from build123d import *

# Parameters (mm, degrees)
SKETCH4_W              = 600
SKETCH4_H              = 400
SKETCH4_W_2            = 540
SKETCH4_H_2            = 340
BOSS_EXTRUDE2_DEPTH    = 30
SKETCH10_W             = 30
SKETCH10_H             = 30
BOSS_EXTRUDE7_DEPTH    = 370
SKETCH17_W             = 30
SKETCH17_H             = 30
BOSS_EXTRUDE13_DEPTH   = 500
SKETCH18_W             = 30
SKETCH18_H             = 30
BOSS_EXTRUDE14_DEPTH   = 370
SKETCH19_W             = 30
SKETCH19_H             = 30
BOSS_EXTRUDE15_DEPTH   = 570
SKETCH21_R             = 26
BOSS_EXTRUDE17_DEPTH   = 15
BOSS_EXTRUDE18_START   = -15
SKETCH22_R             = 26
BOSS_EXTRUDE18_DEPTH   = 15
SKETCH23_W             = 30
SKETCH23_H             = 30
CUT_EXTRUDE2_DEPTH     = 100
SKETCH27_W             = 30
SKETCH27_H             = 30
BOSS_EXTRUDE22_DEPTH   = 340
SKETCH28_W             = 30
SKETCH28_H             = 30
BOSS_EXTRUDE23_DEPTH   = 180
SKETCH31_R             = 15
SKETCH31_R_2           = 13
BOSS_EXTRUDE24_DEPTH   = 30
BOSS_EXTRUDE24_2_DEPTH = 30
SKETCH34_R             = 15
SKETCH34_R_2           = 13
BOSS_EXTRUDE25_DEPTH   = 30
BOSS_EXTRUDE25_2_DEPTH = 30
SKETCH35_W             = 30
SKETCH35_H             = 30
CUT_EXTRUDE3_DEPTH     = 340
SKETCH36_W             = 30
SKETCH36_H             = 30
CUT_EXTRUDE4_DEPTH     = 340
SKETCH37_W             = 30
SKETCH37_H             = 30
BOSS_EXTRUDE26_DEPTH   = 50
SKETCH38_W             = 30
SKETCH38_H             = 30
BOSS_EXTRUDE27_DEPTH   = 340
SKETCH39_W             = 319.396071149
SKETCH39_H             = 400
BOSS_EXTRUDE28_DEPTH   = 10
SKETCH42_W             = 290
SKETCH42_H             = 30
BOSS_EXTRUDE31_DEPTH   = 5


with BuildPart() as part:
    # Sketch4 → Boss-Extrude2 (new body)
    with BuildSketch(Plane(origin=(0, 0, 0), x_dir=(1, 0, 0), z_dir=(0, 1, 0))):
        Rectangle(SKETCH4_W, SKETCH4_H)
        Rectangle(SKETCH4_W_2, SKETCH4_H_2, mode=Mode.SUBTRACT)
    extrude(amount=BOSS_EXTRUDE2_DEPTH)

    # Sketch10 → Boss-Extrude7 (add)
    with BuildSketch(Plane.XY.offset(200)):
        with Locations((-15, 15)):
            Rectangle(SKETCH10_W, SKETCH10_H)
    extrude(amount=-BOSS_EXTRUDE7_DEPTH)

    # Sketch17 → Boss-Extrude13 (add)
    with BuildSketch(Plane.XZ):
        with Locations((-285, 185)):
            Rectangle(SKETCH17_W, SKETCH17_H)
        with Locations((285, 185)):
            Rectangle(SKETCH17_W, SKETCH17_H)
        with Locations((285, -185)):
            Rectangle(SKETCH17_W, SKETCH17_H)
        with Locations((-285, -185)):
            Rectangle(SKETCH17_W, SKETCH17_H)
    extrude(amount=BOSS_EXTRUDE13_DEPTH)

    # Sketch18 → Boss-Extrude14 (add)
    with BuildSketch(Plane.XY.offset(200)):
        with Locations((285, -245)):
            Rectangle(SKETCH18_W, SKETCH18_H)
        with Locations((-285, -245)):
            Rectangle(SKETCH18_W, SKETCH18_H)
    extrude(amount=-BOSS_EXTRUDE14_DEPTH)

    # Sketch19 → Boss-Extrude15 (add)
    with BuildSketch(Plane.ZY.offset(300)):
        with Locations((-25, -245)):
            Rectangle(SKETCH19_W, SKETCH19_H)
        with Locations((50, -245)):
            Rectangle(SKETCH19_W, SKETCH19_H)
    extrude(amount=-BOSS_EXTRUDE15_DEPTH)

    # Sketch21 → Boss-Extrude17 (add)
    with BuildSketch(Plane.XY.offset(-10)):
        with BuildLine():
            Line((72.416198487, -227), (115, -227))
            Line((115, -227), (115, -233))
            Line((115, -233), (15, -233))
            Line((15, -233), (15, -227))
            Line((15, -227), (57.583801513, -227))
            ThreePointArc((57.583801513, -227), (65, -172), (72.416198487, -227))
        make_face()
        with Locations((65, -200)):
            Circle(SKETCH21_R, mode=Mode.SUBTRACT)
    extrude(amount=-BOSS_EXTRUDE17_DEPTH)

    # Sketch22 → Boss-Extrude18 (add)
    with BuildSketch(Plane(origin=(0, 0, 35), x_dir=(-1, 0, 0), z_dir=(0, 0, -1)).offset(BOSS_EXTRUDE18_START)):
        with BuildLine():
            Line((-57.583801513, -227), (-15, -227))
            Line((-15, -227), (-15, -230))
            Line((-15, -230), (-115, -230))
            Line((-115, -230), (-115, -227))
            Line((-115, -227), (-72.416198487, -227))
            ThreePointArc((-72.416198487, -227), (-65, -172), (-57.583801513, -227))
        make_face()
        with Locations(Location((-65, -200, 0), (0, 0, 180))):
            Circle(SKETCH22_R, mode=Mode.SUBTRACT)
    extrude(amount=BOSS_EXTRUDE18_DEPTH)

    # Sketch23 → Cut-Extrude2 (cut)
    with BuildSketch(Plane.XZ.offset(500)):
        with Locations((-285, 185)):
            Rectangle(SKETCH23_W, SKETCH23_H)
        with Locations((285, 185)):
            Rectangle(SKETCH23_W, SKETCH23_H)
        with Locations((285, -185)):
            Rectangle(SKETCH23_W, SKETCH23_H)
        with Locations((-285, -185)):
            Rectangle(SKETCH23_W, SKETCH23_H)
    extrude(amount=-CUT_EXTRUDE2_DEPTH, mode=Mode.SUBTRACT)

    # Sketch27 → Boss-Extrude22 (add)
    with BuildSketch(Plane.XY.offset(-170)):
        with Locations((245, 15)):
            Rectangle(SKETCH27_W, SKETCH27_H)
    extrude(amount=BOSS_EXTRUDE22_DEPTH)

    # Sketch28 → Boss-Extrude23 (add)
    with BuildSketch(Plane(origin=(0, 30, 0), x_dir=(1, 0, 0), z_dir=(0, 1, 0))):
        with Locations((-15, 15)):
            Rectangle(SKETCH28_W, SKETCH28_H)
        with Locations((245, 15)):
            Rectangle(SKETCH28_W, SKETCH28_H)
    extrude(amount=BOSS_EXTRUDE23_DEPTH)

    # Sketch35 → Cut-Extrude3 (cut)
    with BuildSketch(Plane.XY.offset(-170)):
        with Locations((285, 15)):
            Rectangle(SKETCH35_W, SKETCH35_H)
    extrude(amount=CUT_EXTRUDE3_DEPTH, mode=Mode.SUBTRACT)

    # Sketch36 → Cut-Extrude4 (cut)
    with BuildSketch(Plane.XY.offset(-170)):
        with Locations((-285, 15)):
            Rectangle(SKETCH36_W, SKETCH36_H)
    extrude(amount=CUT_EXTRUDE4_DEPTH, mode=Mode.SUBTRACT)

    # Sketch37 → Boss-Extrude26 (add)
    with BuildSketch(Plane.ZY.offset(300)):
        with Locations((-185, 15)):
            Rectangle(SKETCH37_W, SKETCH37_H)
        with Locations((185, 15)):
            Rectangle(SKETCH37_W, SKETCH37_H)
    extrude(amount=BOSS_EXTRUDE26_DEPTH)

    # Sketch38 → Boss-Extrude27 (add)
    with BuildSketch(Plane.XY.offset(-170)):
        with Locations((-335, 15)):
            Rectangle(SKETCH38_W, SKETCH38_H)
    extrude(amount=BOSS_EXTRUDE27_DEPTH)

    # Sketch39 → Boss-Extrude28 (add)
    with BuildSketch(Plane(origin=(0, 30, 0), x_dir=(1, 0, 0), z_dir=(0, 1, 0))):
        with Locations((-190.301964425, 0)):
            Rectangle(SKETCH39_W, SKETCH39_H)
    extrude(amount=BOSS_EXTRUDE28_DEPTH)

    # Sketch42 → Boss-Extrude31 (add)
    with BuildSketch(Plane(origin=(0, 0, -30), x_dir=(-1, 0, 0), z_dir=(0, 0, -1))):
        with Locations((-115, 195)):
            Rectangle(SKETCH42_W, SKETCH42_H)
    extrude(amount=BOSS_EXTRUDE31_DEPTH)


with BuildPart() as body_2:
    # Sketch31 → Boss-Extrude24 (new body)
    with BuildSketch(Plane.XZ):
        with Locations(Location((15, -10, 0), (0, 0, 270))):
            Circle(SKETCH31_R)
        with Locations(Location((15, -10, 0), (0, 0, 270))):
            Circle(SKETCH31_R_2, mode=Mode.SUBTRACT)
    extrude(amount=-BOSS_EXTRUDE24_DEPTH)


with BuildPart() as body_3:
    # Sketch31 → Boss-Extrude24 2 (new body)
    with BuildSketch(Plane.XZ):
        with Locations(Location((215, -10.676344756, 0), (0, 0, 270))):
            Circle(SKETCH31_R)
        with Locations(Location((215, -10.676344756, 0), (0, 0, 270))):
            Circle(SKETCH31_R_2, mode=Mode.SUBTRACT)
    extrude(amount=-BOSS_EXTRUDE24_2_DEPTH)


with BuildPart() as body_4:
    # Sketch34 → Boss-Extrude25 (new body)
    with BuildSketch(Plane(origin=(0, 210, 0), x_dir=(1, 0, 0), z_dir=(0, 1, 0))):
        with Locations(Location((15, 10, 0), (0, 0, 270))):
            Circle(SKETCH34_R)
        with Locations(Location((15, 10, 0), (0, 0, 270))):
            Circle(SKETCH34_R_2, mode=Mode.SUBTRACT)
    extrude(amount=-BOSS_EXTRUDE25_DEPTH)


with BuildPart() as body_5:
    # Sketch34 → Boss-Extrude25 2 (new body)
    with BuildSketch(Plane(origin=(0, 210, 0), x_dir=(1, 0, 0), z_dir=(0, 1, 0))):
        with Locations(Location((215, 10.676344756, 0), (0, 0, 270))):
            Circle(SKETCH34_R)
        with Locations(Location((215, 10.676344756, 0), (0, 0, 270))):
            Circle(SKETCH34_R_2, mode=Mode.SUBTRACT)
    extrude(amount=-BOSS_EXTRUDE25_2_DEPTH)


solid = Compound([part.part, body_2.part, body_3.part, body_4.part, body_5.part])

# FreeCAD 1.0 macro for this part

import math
import FreeCAD as App
import Part
import Sketcher
Q = App.Units.Quantity

doc = App.newDocument("Part")
body = doc.addObject("PartDesign::Body", "Body")

# Sketch on XZ plane
sketch1 = body.newObject("Sketcher::SketchObject", "Sketch")
sketch1.AttachmentSupport = (doc.getObject("XZ_Plane"), [""])
sketch1.MapMode = "FlatFace"
sketch1.addGeometry(Part.LineSegment(App.Vector(-300, -200, 0), App.Vector(-300, 200, 0)), False)
sketch1.addGeometry(Part.LineSegment(App.Vector(-300, 200, 0), App.Vector(300, 200, 0)), False)
sketch1.addGeometry(Part.LineSegment(App.Vector(300, 200, 0), App.Vector(300, -200, 0)), False)
sketch1.addGeometry(Part.LineSegment(App.Vector(300, -200, 0), App.Vector(-300, -200, 0)), False)
sketch1.addGeometry(Part.LineSegment(App.Vector(270, 170, 0), App.Vector(-270, 170, 0)), False)
sketch1.addGeometry(Part.LineSegment(App.Vector(-270, 170, 0), App.Vector(-270, -170, 0)), False)
sketch1.addGeometry(Part.LineSegment(App.Vector(-270, -170, 0), App.Vector(270, -170, 0)), False)
sketch1.addGeometry(Part.LineSegment(App.Vector(270, -170, 0), App.Vector(270, 170, 0)), False)
sketch1.addConstraint(Sketcher.Constraint("Coincident", 0, 2, 1, 1))
sketch1.addConstraint(Sketcher.Constraint("Coincident", 1, 2, 2, 1))
sketch1.addConstraint(Sketcher.Constraint("Coincident", 2, 2, 3, 1))
sketch1.addConstraint(Sketcher.Constraint("Coincident", 3, 2, 0, 1))
sketch1.addConstraint(Sketcher.Constraint("Coincident", 4, 2, 5, 1))
sketch1.addConstraint(Sketcher.Constraint("Coincident", 5, 2, 6, 1))
sketch1.addConstraint(Sketcher.Constraint("Coincident", 6, 2, 7, 1))
sketch1.addConstraint(Sketcher.Constraint("Coincident", 7, 2, 4, 1))
sketch1.addConstraint(Sketcher.Constraint("Vertical", 0))
sketch1.addConstraint(Sketcher.Constraint("Horizontal", 1))
sketch1.addConstraint(Sketcher.Constraint("Vertical", 2))
sketch1.addConstraint(Sketcher.Constraint("Horizontal", 3))
sketch1.addConstraint(Sketcher.Constraint("Horizontal", 4))
sketch1.addConstraint(Sketcher.Constraint("Vertical", 5))
sketch1.addConstraint(Sketcher.Constraint("Horizontal", 6))
sketch1.addConstraint(Sketcher.Constraint("Vertical", 7))
sketch1.addConstraint(Sketcher.Constraint("Symmetric", 0, 2, 2, 2, -1, 1))
sketch1.addConstraint(Sketcher.Constraint("Symmetric", 4, 2, 6, 2, -1, 1))
sketch1.addConstraint(Sketcher.Constraint("DistanceX", 1, 1, 1, 2, Q("600 mm")))
sketch1.addConstraint(Sketcher.Constraint("DistanceX", 4, 2, 4, 1, Q("540 mm")))
sketch1.addConstraint(Sketcher.Constraint("DistanceY", 0, 1, 0, 2, Q("400 mm")))
sketch1.addConstraint(Sketcher.Constraint("DistanceY", 5, 2, 5, 1, Q("340 mm")))
pad1 = body.newObject("PartDesign::Pad", "Pad")
pad1.Profile = sketch1
pad1.Length = 30
pad1.Reversed = True

# Sketch on XY plane
sketch2 = body.newObject("Sketcher::SketchObject", "Sketch001")
sketch2.AttachmentSupport = (doc.getObject("XY_Plane"), [""])
sketch2.MapMode = "FlatFace"
sketch2.AttachmentOffset = App.Placement(App.Vector(0, 0, 200), App.Rotation())
sketch2.addGeometry(Part.LineSegment(App.Vector(-30, 30, 0), App.Vector(-30, 0, 0)), False)
sketch2.addGeometry(Part.LineSegment(App.Vector(-30, 0, 0), App.Vector(0, 0, 0)), False)
sketch2.addGeometry(Part.LineSegment(App.Vector(0, 0, 0), App.Vector(0, 30, 0)), False)
sketch2.addGeometry(Part.LineSegment(App.Vector(0, 30, 0), App.Vector(-30, 30, 0)), False)
sketch2.addConstraint(Sketcher.Constraint("Coincident", 0, 2, 1, 1))
sketch2.addConstraint(Sketcher.Constraint("Coincident", 1, 2, 2, 1))
sketch2.addConstraint(Sketcher.Constraint("Coincident", 2, 2, 3, 1))
sketch2.addConstraint(Sketcher.Constraint("Coincident", 3, 2, 0, 1))
sketch2.addConstraint(Sketcher.Constraint("Vertical", 0))
sketch2.addConstraint(Sketcher.Constraint("Horizontal", 1))
sketch2.addConstraint(Sketcher.Constraint("Vertical", 2))
sketch2.addConstraint(Sketcher.Constraint("Horizontal", 3))
sketch2.addConstraint(Sketcher.Constraint("Coincident", 1, 2, -1, 1))
sketch2.addConstraint(Sketcher.Constraint("Equal", 3, 0))
sketch2.addConstraint(Sketcher.Constraint("DistanceX", 1, 1, 1, 2, Q("30 mm")))
pad2 = body.newObject("PartDesign::Pad", "Pad001")
pad2.Profile = sketch2
pad2.Length = 370
pad2.Reversed = True

# Sketch on XZ plane
sketch3 = body.newObject("Sketcher::SketchObject", "Sketch002")
sketch3.AttachmentSupport = (doc.getObject("XZ_Plane"), [""])
sketch3.MapMode = "FlatFace"
sketch3.addGeometry(Part.LineSegment(App.Vector(-300, 200, 0), App.Vector(-300, 170, 0)), False)
sketch3.addGeometry(Part.LineSegment(App.Vector(-300, 170, 0), App.Vector(-270, 170, 0)), False)
sketch3.addGeometry(Part.LineSegment(App.Vector(-270, 170, 0), App.Vector(-270, 200, 0)), False)
sketch3.addGeometry(Part.LineSegment(App.Vector(-270, 200, 0), App.Vector(-300, 200, 0)), False)
sketch3.addGeometry(Part.LineSegment(App.Vector(270, 200, 0), App.Vector(270, 170, 0)), False)
sketch3.addGeometry(Part.LineSegment(App.Vector(270, 170, 0), App.Vector(300, 170, 0)), False)
sketch3.addGeometry(Part.LineSegment(App.Vector(300, 170, 0), App.Vector(300, 200, 0)), False)
sketch3.addGeometry(Part.LineSegment(App.Vector(300, 200, 0), App.Vector(270, 200, 0)), False)
sketch3.addGeometry(Part.LineSegment(App.Vector(270, -170, 0), App.Vector(270, -200, 0)), False)
sketch3.addGeometry(Part.LineSegment(App.Vector(270, -200, 0), App.Vector(300, -200, 0)), False)
sketch3.addGeometry(Part.LineSegment(App.Vector(300, -200, 0), App.Vector(300, -170, 0)), False)
sketch3.addGeometry(Part.LineSegment(App.Vector(300, -170, 0), App.Vector(270, -170, 0)), False)
sketch3.addGeometry(Part.LineSegment(App.Vector(-300, -170, 0), App.Vector(-300, -200, 0)), False)
sketch3.addGeometry(Part.LineSegment(App.Vector(-300, -200, 0), App.Vector(-270, -200, 0)), False)
sketch3.addGeometry(Part.LineSegment(App.Vector(-270, -200, 0), App.Vector(-270, -170, 0)), False)
sketch3.addGeometry(Part.LineSegment(App.Vector(-270, -170, 0), App.Vector(-300, -170, 0)), False)
sketch3.addConstraint(Sketcher.Constraint("Coincident", 0, 2, 1, 1))
sketch3.addConstraint(Sketcher.Constraint("Coincident", 1, 2, 2, 1))
sketch3.addConstraint(Sketcher.Constraint("Coincident", 2, 2, 3, 1))
sketch3.addConstraint(Sketcher.Constraint("Coincident", 3, 2, 0, 1))
sketch3.addConstraint(Sketcher.Constraint("Coincident", 4, 2, 5, 1))
sketch3.addConstraint(Sketcher.Constraint("Coincident", 5, 2, 6, 1))
sketch3.addConstraint(Sketcher.Constraint("Coincident", 6, 2, 7, 1))
sketch3.addConstraint(Sketcher.Constraint("Coincident", 7, 2, 4, 1))
sketch3.addConstraint(Sketcher.Constraint("Coincident", 8, 2, 9, 1))
sketch3.addConstraint(Sketcher.Constraint("Coincident", 9, 2, 10, 1))
sketch3.addConstraint(Sketcher.Constraint("Coincident", 10, 2, 11, 1))
sketch3.addConstraint(Sketcher.Constraint("Coincident", 11, 2, 8, 1))
sketch3.addConstraint(Sketcher.Constraint("Coincident", 12, 2, 13, 1))
sketch3.addConstraint(Sketcher.Constraint("Coincident", 13, 2, 14, 1))
sketch3.addConstraint(Sketcher.Constraint("Coincident", 14, 2, 15, 1))
sketch3.addConstraint(Sketcher.Constraint("Coincident", 15, 2, 12, 1))
sketch3.addConstraint(Sketcher.Constraint("Vertical", 0))
sketch3.addConstraint(Sketcher.Constraint("Horizontal", 1))
sketch3.addConstraint(Sketcher.Constraint("Vertical", 2))
sketch3.addConstraint(Sketcher.Constraint("Horizontal", 3))
sketch3.addConstraint(Sketcher.Constraint("Vertical", 4))
sketch3.addConstraint(Sketcher.Constraint("Horizontal", 5))
sketch3.addConstraint(Sketcher.Constraint("Vertical", 6))
sketch3.addConstraint(Sketcher.Constraint("Horizontal", 7))
sketch3.addConstraint(Sketcher.Constraint("Vertical", 8))
sketch3.addConstraint(Sketcher.Constraint("Horizontal", 9))
sketch3.addConstraint(Sketcher.Constraint("Vertical", 10))
sketch3.addConstraint(Sketcher.Constraint("Horizontal", 11))
sketch3.addConstraint(Sketcher.Constraint("Vertical", 12))
sketch3.addConstraint(Sketcher.Constraint("Horizontal", 13))
sketch3.addConstraint(Sketcher.Constraint("Vertical", 14))
sketch3.addConstraint(Sketcher.Constraint("Horizontal", 15))
sketch3.addConstraint(Sketcher.Constraint("Symmetric", 2, 2, 8, 2, -1, 1))
sketch3.addConstraint(Sketcher.Constraint("Symmetric", 0, 2, 10, 2, -1, 1))
sketch3.addConstraint(Sketcher.Constraint("Symmetric", 6, 2, 12, 2, -1, 1))
sketch3.addConstraint(Sketcher.Constraint("Symmetric", 4, 2, 14, 2, -1, 1))
sketch3.addConstraint(Sketcher.Constraint("Symmetric", 1, 2, 4, 2, -2))
sketch3.addConstraint(Sketcher.Constraint("Symmetric", 3, 2, 6, 2, -2))
sketch3.addConstraint(Sketcher.Constraint("Equal", 15, 0))
sketch3.addConstraint(Sketcher.Constraint("DistanceX", 1, 1, 1, 2, Q("30 mm")))
sketch3.addConstraint(Sketcher.Constraint("DistanceX", 0, 2, -1, 1, Q("300 mm")))
sketch3.addConstraint(Sketcher.Constraint("DistanceY", -1, 1, 0, 2, Q("170 mm")))
pad3 = body.newObject("PartDesign::Pad", "Pad002")
pad3.Profile = sketch3
pad3.Length = 500

# Sketch on XY plane
sketch4 = body.newObject("Sketcher::SketchObject", "Sketch003")
sketch4.AttachmentSupport = (doc.getObject("XY_Plane"), [""])
sketch4.MapMode = "FlatFace"
sketch4.AttachmentOffset = App.Placement(App.Vector(0, 0, 200), App.Rotation())
sketch4.addGeometry(Part.LineSegment(App.Vector(270, -230, 0), App.Vector(270, -260, 0)), False)
sketch4.addGeometry(Part.LineSegment(App.Vector(270, -260, 0), App.Vector(300, -260, 0)), False)
sketch4.addGeometry(Part.LineSegment(App.Vector(300, -260, 0), App.Vector(300, -230, 0)), False)
sketch4.addGeometry(Part.LineSegment(App.Vector(300, -230, 0), App.Vector(270, -230, 0)), False)
sketch4.addGeometry(Part.LineSegment(App.Vector(-300, -230, 0), App.Vector(-300, -260, 0)), False)
sketch4.addGeometry(Part.LineSegment(App.Vector(-300, -260, 0), App.Vector(-270, -260, 0)), False)
sketch4.addGeometry(Part.LineSegment(App.Vector(-270, -260, 0), App.Vector(-270, -230, 0)), False)
sketch4.addGeometry(Part.LineSegment(App.Vector(-270, -230, 0), App.Vector(-300, -230, 0)), False)
sketch4.addConstraint(Sketcher.Constraint("Coincident", 0, 2, 1, 1))
sketch4.addConstraint(Sketcher.Constraint("Coincident", 1, 2, 2, 1))
sketch4.addConstraint(Sketcher.Constraint("Coincident", 2, 2, 3, 1))
sketch4.addConstraint(Sketcher.Constraint("Coincident", 3, 2, 0, 1))
sketch4.addConstraint(Sketcher.Constraint("Coincident", 4, 2, 5, 1))
sketch4.addConstraint(Sketcher.Constraint("Coincident", 5, 2, 6, 1))
sketch4.addConstraint(Sketcher.Constraint("Coincident", 6, 2, 7, 1))
sketch4.addConstraint(Sketcher.Constraint("Coincident", 7, 2, 4, 1))
sketch4.addConstraint(Sketcher.Constraint("Vertical", 0))
sketch4.addConstraint(Sketcher.Constraint("Horizontal", 1))
sketch4.addConstraint(Sketcher.Constraint("Vertical", 2))
sketch4.addConstraint(Sketcher.Constraint("Horizontal", 3))
sketch4.addConstraint(Sketcher.Constraint("Vertical", 4))
sketch4.addConstraint(Sketcher.Constraint("Horizontal", 5))
sketch4.addConstraint(Sketcher.Constraint("Vertical", 6))
sketch4.addConstraint(Sketcher.Constraint("Horizontal", 7))
sketch4.addConstraint(Sketcher.Constraint("Symmetric", 1, 2, 4, 2, -2))
sketch4.addConstraint(Sketcher.Constraint("Symmetric", 3, 2, 6, 2, -2))
sketch4.addConstraint(Sketcher.Constraint("Equal", 7, 0))
sketch4.addConstraint(Sketcher.Constraint("DistanceX", 1, 1, 1, 2, Q("30 mm")))
sketch4.addConstraint(Sketcher.Constraint("DistanceX", -1, 1, 0, 2, Q("270 mm")))
sketch4.addConstraint(Sketcher.Constraint("DistanceY", 0, 2, -1, 1, Q("260 mm")))
pad4 = body.newObject("PartDesign::Pad", "Pad003")
pad4.Profile = sketch4
pad4.Length = 370
pad4.Reversed = True

# Sketch on YZ plane
sketch5 = body.newObject("Sketcher::SketchObject", "Sketch004")
sketch5.AttachmentSupport = (doc.getObject("YZ_Plane"), [""])
sketch5.MapMode = "FlatFace"
sketch5.AttachmentOffset = App.Placement(App.Vector(0, 0, -300), App.Rotation())
sketch5.addGeometry(Part.LineSegment(App.Vector(-230, -40, 0), App.Vector(-260, -40, 0)), False)
sketch5.addGeometry(Part.LineSegment(App.Vector(-260, -40, 0), App.Vector(-260, -10, 0)), False)
sketch5.addGeometry(Part.LineSegment(App.Vector(-260, -10, 0), App.Vector(-230, -10, 0)), False)
sketch5.addGeometry(Part.LineSegment(App.Vector(-230, -10, 0), App.Vector(-230, -40, 0)), False)
sketch5.addGeometry(Part.LineSegment(App.Vector(-230, 35, 0), App.Vector(-260, 35, 0)), False)
sketch5.addGeometry(Part.LineSegment(App.Vector(-260, 35, 0), App.Vector(-260, 65, 0)), False)
sketch5.addGeometry(Part.LineSegment(App.Vector(-260, 65, 0), App.Vector(-230, 65, 0)), False)
sketch5.addGeometry(Part.LineSegment(App.Vector(-230, 65, 0), App.Vector(-230, 35, 0)), False)
sketch5.addConstraint(Sketcher.Constraint("Coincident", 0, 2, 1, 1))
sketch5.addConstraint(Sketcher.Constraint("Coincident", 1, 2, 2, 1))
sketch5.addConstraint(Sketcher.Constraint("Coincident", 2, 2, 3, 1))
sketch5.addConstraint(Sketcher.Constraint("Coincident", 3, 2, 0, 1))
sketch5.addConstraint(Sketcher.Constraint("Coincident", 4, 2, 5, 1))
sketch5.addConstraint(Sketcher.Constraint("Coincident", 5, 2, 6, 1))
sketch5.addConstraint(Sketcher.Constraint("Coincident", 6, 2, 7, 1))
sketch5.addConstraint(Sketcher.Constraint("Coincident", 7, 2, 4, 1))
sketch5.addConstraint(Sketcher.Constraint("Horizontal", 0))
sketch5.addConstraint(Sketcher.Constraint("Vertical", 1))
sketch5.addConstraint(Sketcher.Constraint("Horizontal", 2))
sketch5.addConstraint(Sketcher.Constraint("Vertical", 3))
sketch5.addConstraint(Sketcher.Constraint("Horizontal", 4))
sketch5.addConstraint(Sketcher.Constraint("Vertical", 5))
sketch5.addConstraint(Sketcher.Constraint("Horizontal", 6))
sketch5.addConstraint(Sketcher.Constraint("Vertical", 7))
sketch5.addConstraint(Sketcher.Constraint("Vertical", 1, 2, 4, 2))
sketch5.addConstraint(Sketcher.Constraint("Vertical", 3, 2, 6, 2))
sketch5.addConstraint(Sketcher.Constraint("Equal", 6, 1))
sketch5.addConstraint(Sketcher.Constraint("Equal", 3, 5))
sketch5.addConstraint(Sketcher.Constraint("DistanceX", 0, 2, 0, 1, Q("30 mm")))
sketch5.addConstraint(Sketcher.Constraint("DistanceX", 0, 2, -1, 1, Q("260 mm")))
sketch5.addConstraint(Sketcher.Constraint("DistanceY", 0, 2, -1, 1, Q("40 mm")))
sketch5.addConstraint(Sketcher.Constraint("DistanceY", -1, 1, 4, 2, Q("35 mm")))
pad5 = body.newObject("PartDesign::Pad", "Pad004")
pad5.Profile = sketch5
pad5.Length = 570

# Sketch on XY plane
sketch6 = body.newObject("Sketcher::SketchObject", "Sketch005")
sketch6.AttachmentSupport = (doc.getObject("XY_Plane"), [""])
sketch6.MapMode = "FlatFace"
sketch6.AttachmentOffset = App.Placement(App.Vector(0, 0, -10), App.Rotation())
sketch6.addGeometry(Part.LineSegment(App.Vector(115, -227, 0), App.Vector(72.416198, -227, 0)), False)
sketch6.addGeometry(Part.ArcOfCircle(Part.Circle(App.Vector(65, -200, 0), App.Vector(0, 0, 1), 28), math.radians(-74.641114), math.radians(254.641114)), False)
sketch6.addGeometry(Part.LineSegment(App.Vector(57.583802, -227, 0), App.Vector(15, -227, 0)), False)
sketch6.addGeometry(Part.LineSegment(App.Vector(15, -227, 0), App.Vector(15, -233, 0)), False)
sketch6.addGeometry(Part.LineSegment(App.Vector(15, -233, 0), App.Vector(115, -233, 0)), False)
sketch6.addGeometry(Part.LineSegment(App.Vector(115, -233, 0), App.Vector(115, -227, 0)), False)
sketch6.addGeometry(Part.Circle(App.Vector(65, -200, 0), App.Vector(0, 0, 1), 26), False)
sketch6.addConstraint(Sketcher.Constraint("Coincident", 0, 2, 1, 1))
sketch6.addConstraint(Sketcher.Constraint("Coincident", 1, 2, 2, 1))
sketch6.addConstraint(Sketcher.Constraint("Coincident", 2, 2, 3, 1))
sketch6.addConstraint(Sketcher.Constraint("Coincident", 3, 2, 4, 1))
sketch6.addConstraint(Sketcher.Constraint("Coincident", 4, 2, 5, 1))
sketch6.addConstraint(Sketcher.Constraint("Coincident", 5, 2, 0, 1))
sketch6.addConstraint(Sketcher.Constraint("Horizontal", 0))
sketch6.addConstraint(Sketcher.Constraint("Horizontal", 2))
sketch6.addConstraint(Sketcher.Constraint("Vertical", 3))
sketch6.addConstraint(Sketcher.Constraint("Horizontal", 4))
sketch6.addConstraint(Sketcher.Constraint("Vertical", 5))
sketch6.addConstraint(Sketcher.Constraint("Coincident", 6, 3, 1, 3))
sketch6.addConstraint(Sketcher.Constraint("Horizontal", 0, 2, 1, 2))
sketch6.addConstraint(Sketcher.Constraint("Equal", 0, 2))
sketch6.addConstraint(Sketcher.Constraint("Diameter", 6, Q("52 mm")))
sketch6.addConstraint(Sketcher.Constraint("Radius", 1, Q("28 mm")))
sketch6.addConstraint(Sketcher.Constraint("DistanceX", 4, 1, 4, 2, Q("100 mm")))
sketch6.addConstraint(Sketcher.Constraint("DistanceY", 3, 2, 3, 1, Q("6 mm")))
sketch6.addConstraint(Sketcher.Constraint("DistanceX", -1, 1, 1, 3, Q("65 mm")))
sketch6.addConstraint(Sketcher.Constraint("DistanceY", 1, 3, -1, 1, Q("200 mm")))
sketch6.addConstraint(Sketcher.Constraint("DistanceY", 0, 2, -1, 1, Q("227 mm")))
pad6 = body.newObject("PartDesign::Pad", "Pad005")
pad6.Profile = sketch6
pad6.Length = 15
pad6.Reversed = True

# Sketch on XY plane
sketch7 = body.newObject("Sketcher::SketchObject", "Sketch006")
sketch7.AttachmentSupport = (doc.getObject("XY_Plane"), [""])
sketch7.MapMode = "FlatFace"
sketch7.AttachmentOffset = App.Placement(App.Vector(0, 0, 50), App.Rotation())
sketch7.addGeometry(Part.LineSegment(App.Vector(15, -227, 0), App.Vector(57.583802, -227, 0)), False)
sketch7.addGeometry(Part.ArcOfCircle(Part.Circle(App.Vector(65, -200, 0), App.Vector(0, 0, 1), 28), math.radians(-74.641114), math.radians(254.641114)), False)
sketch7.addGeometry(Part.LineSegment(App.Vector(72.416198, -227, 0), App.Vector(115, -227, 0)), False)
sketch7.addGeometry(Part.LineSegment(App.Vector(115, -227, 0), App.Vector(115, -230, 0)), False)
sketch7.addGeometry(Part.LineSegment(App.Vector(115, -230, 0), App.Vector(15, -230, 0)), False)
sketch7.addGeometry(Part.LineSegment(App.Vector(15, -230, 0), App.Vector(15, -227, 0)), False)
sketch7.addGeometry(Part.Circle(App.Vector(65, -200, 0), App.Vector(0, 0, 1), 26), False)
sketch7.addConstraint(Sketcher.Constraint("Coincident", 0, 2, 1, 2))
sketch7.addConstraint(Sketcher.Constraint("Coincident", 1, 1, 2, 1))
sketch7.addConstraint(Sketcher.Constraint("Coincident", 2, 2, 3, 1))
sketch7.addConstraint(Sketcher.Constraint("Coincident", 3, 2, 4, 1))
sketch7.addConstraint(Sketcher.Constraint("Coincident", 4, 2, 5, 1))
sketch7.addConstraint(Sketcher.Constraint("Coincident", 5, 2, 0, 1))
sketch7.addConstraint(Sketcher.Constraint("Horizontal", 0))
sketch7.addConstraint(Sketcher.Constraint("Horizontal", 2))
sketch7.addConstraint(Sketcher.Constraint("Vertical", 3))
sketch7.addConstraint(Sketcher.Constraint("Horizontal", 4))
sketch7.addConstraint(Sketcher.Constraint("Vertical", 5))
sketch7.addConstraint(Sketcher.Constraint("Coincident", 6, 3, 1, 3))
sketch7.addConstraint(Sketcher.Constraint("Horizontal", 0, 2, 1, 1))
sketch7.addConstraint(Sketcher.Constraint("Equal", 0, 2))
sketch7.addConstraint(Sketcher.Constraint("Diameter", 6, Q("52 mm")))
sketch7.addConstraint(Sketcher.Constraint("Radius", 1, Q("28 mm")))
sketch7.addConstraint(Sketcher.Constraint("DistanceX", 4, 2, 4, 1, Q("100 mm")))
sketch7.addConstraint(Sketcher.Constraint("DistanceY", 3, 2, 3, 1, Q("3 mm")))
sketch7.addConstraint(Sketcher.Constraint("DistanceX", -1, 1, 1, 3, Q("65 mm")))
sketch7.addConstraint(Sketcher.Constraint("DistanceY", 1, 3, -1, 1, Q("200 mm")))
sketch7.addConstraint(Sketcher.Constraint("DistanceY", 0, 2, -1, 1, Q("227 mm")))
pad7 = body.newObject("PartDesign::Pad", "Pad006")
pad7.Profile = sketch7
pad7.Length = 15
pad7.Reversed = True

# Sketch on XZ plane
sketch8 = body.newObject("Sketcher::SketchObject", "Sketch007")
sketch8.AttachmentSupport = (doc.getObject("XZ_Plane"), [""])
sketch8.MapMode = "FlatFace"
sketch8.AttachmentOffset = App.Placement(App.Vector(0, 0, 500), App.Rotation())
sketch8.addGeometry(Part.LineSegment(App.Vector(-300, 200, 0), App.Vector(-300, 170, 0)), False)
sketch8.addGeometry(Part.LineSegment(App.Vector(-300, 170, 0), App.Vector(-270, 170, 0)), False)
sketch8.addGeometry(Part.LineSegment(App.Vector(-270, 170, 0), App.Vector(-270, 200, 0)), False)
sketch8.addGeometry(Part.LineSegment(App.Vector(-270, 200, 0), App.Vector(-300, 200, 0)), False)
sketch8.addGeometry(Part.LineSegment(App.Vector(270, 200, 0), App.Vector(270, 170, 0)), False)
sketch8.addGeometry(Part.LineSegment(App.Vector(270, 170, 0), App.Vector(300, 170, 0)), False)
sketch8.addGeometry(Part.LineSegment(App.Vector(300, 170, 0), App.Vector(300, 200, 0)), False)
sketch8.addGeometry(Part.LineSegment(App.Vector(300, 200, 0), App.Vector(270, 200, 0)), False)
sketch8.addGeometry(Part.LineSegment(App.Vector(270, -170, 0), App.Vector(270, -200, 0)), False)
sketch8.addGeometry(Part.LineSegment(App.Vector(270, -200, 0), App.Vector(300, -200, 0)), False)
sketch8.addGeometry(Part.LineSegment(App.Vector(300, -200, 0), App.Vector(300, -170, 0)), False)
sketch8.addGeometry(Part.LineSegment(App.Vector(300, -170, 0), App.Vector(270, -170, 0)), False)
sketch8.addGeometry(Part.LineSegment(App.Vector(-300, -170, 0), App.Vector(-300, -200, 0)), False)
sketch8.addGeometry(Part.LineSegment(App.Vector(-300, -200, 0), App.Vector(-270, -200, 0)), False)
sketch8.addGeometry(Part.LineSegment(App.Vector(-270, -200, 0), App.Vector(-270, -170, 0)), False)
sketch8.addGeometry(Part.LineSegment(App.Vector(-270, -170, 0), App.Vector(-300, -170, 0)), False)
sketch8.addConstraint(Sketcher.Constraint("Coincident", 0, 2, 1, 1))
sketch8.addConstraint(Sketcher.Constraint("Coincident", 1, 2, 2, 1))
sketch8.addConstraint(Sketcher.Constraint("Coincident", 2, 2, 3, 1))
sketch8.addConstraint(Sketcher.Constraint("Coincident", 3, 2, 0, 1))
sketch8.addConstraint(Sketcher.Constraint("Coincident", 4, 2, 5, 1))
sketch8.addConstraint(Sketcher.Constraint("Coincident", 5, 2, 6, 1))
sketch8.addConstraint(Sketcher.Constraint("Coincident", 6, 2, 7, 1))
sketch8.addConstraint(Sketcher.Constraint("Coincident", 7, 2, 4, 1))
sketch8.addConstraint(Sketcher.Constraint("Coincident", 8, 2, 9, 1))
sketch8.addConstraint(Sketcher.Constraint("Coincident", 9, 2, 10, 1))
sketch8.addConstraint(Sketcher.Constraint("Coincident", 10, 2, 11, 1))
sketch8.addConstraint(Sketcher.Constraint("Coincident", 11, 2, 8, 1))
sketch8.addConstraint(Sketcher.Constraint("Coincident", 12, 2, 13, 1))
sketch8.addConstraint(Sketcher.Constraint("Coincident", 13, 2, 14, 1))
sketch8.addConstraint(Sketcher.Constraint("Coincident", 14, 2, 15, 1))
sketch8.addConstraint(Sketcher.Constraint("Coincident", 15, 2, 12, 1))
sketch8.addConstraint(Sketcher.Constraint("Vertical", 0))
sketch8.addConstraint(Sketcher.Constraint("Horizontal", 1))
sketch8.addConstraint(Sketcher.Constraint("Vertical", 2))
sketch8.addConstraint(Sketcher.Constraint("Horizontal", 3))
sketch8.addConstraint(Sketcher.Constraint("Vertical", 4))
sketch8.addConstraint(Sketcher.Constraint("Horizontal", 5))
sketch8.addConstraint(Sketcher.Constraint("Vertical", 6))
sketch8.addConstraint(Sketcher.Constraint("Horizontal", 7))
sketch8.addConstraint(Sketcher.Constraint("Vertical", 8))
sketch8.addConstraint(Sketcher.Constraint("Horizontal", 9))
sketch8.addConstraint(Sketcher.Constraint("Vertical", 10))
sketch8.addConstraint(Sketcher.Constraint("Horizontal", 11))
sketch8.addConstraint(Sketcher.Constraint("Vertical", 12))
sketch8.addConstraint(Sketcher.Constraint("Horizontal", 13))
sketch8.addConstraint(Sketcher.Constraint("Vertical", 14))
sketch8.addConstraint(Sketcher.Constraint("Horizontal", 15))
sketch8.addConstraint(Sketcher.Constraint("Symmetric", 2, 2, 8, 2, -1, 1))
sketch8.addConstraint(Sketcher.Constraint("Symmetric", 0, 2, 10, 2, -1, 1))
sketch8.addConstraint(Sketcher.Constraint("Symmetric", 6, 2, 12, 2, -1, 1))
sketch8.addConstraint(Sketcher.Constraint("Symmetric", 4, 2, 14, 2, -1, 1))
sketch8.addConstraint(Sketcher.Constraint("Symmetric", 1, 2, 4, 2, -2))
sketch8.addConstraint(Sketcher.Constraint("Symmetric", 3, 2, 6, 2, -2))
sketch8.addConstraint(Sketcher.Constraint("Equal", 15, 0))
sketch8.addConstraint(Sketcher.Constraint("DistanceX", 1, 1, 1, 2, Q("30 mm")))
sketch8.addConstraint(Sketcher.Constraint("DistanceX", 0, 2, -1, 1, Q("300 mm")))
sketch8.addConstraint(Sketcher.Constraint("DistanceY", -1, 1, 0, 2, Q("170 mm")))
pocket1 = body.newObject("PartDesign::Pocket", "Pocket")
pocket1.Profile = sketch8
pocket1.Length = 100

# Sketch on XY plane
sketch9 = body.newObject("Sketcher::SketchObject", "Sketch008")
sketch9.AttachmentSupport = (doc.getObject("XY_Plane"), [""])
sketch9.MapMode = "FlatFace"
sketch9.AttachmentOffset = App.Placement(App.Vector(0, 0, -170), App.Rotation())
sketch9.addGeometry(Part.LineSegment(App.Vector(230, 30, 0), App.Vector(230, 0, 0)), False)
sketch9.addGeometry(Part.LineSegment(App.Vector(230, 0, 0), App.Vector(260, 0, 0)), False)
sketch9.addGeometry(Part.LineSegment(App.Vector(260, 0, 0), App.Vector(260, 30, 0)), False)
sketch9.addGeometry(Part.LineSegment(App.Vector(260, 30, 0), App.Vector(230, 30, 0)), False)
sketch9.addConstraint(Sketcher.Constraint("Coincident", 0, 2, 1, 1))
sketch9.addConstraint(Sketcher.Constraint("Coincident", 1, 2, 2, 1))
sketch9.addConstraint(Sketcher.Constraint("Coincident", 2, 2, 3, 1))
sketch9.addConstraint(Sketcher.Constraint("Coincident", 3, 2, 0, 1))
sketch9.addConstraint(Sketcher.Constraint("Vertical", 0))
sketch9.addConstraint(Sketcher.Constraint("Horizontal", 1))
sketch9.addConstraint(Sketcher.Constraint("Vertical", 2))
sketch9.addConstraint(Sketcher.Constraint("Horizontal", 3))
sketch9.addConstraint(Sketcher.Constraint("PointOnObject", 0, 2, -1))
sketch9.addConstraint(Sketcher.Constraint("Equal", 3, 0))
sketch9.addConstraint(Sketcher.Constraint("DistanceX", 1, 1, 1, 2, Q("30 mm")))
sketch9.addConstraint(Sketcher.Constraint("DistanceX", -1, 1, 0, 2, Q("230 mm")))
pad8 = body.newObject("PartDesign::Pad", "Pad007")
pad8.Profile = sketch9
pad8.Length = 340

# Sketch on XZ plane
sketch10 = body.newObject("Sketcher::SketchObject", "Sketch009")
sketch10.AttachmentSupport = (doc.getObject("XZ_Plane"), [""])
sketch10.MapMode = "FlatFace"
sketch10.AttachmentOffset = App.Placement(App.Vector(0, 0, -30), App.Rotation())
sketch10.addGeometry(Part.LineSegment(App.Vector(-30, -30, 0), App.Vector(-30, 0, 0)), False)
sketch10.addGeometry(Part.LineSegment(App.Vector(-30, 0, 0), App.Vector(0, 0, 0)), False)
sketch10.addGeometry(Part.LineSegment(App.Vector(0, 0, 0), App.Vector(0, -30, 0)), False)
sketch10.addGeometry(Part.LineSegment(App.Vector(0, -30, 0), App.Vector(-30, -30, 0)), False)
sketch10.addGeometry(Part.LineSegment(App.Vector(230, -30, 0), App.Vector(230, 0, 0)), False)
sketch10.addGeometry(Part.LineSegment(App.Vector(230, 0, 0), App.Vector(260, 0, 0)), False)
sketch10.addGeometry(Part.LineSegment(App.Vector(260, 0, 0), App.Vector(260, -30, 0)), False)
sketch10.addGeometry(Part.LineSegment(App.Vector(260, -30, 0), App.Vector(230, -30, 0)), False)
sketch10.addConstraint(Sketcher.Constraint("Coincident", 0, 2, 1, 1))
sketch10.addConstraint(Sketcher.Constraint("Coincident", 1, 2, 2, 1))
sketch10.addConstraint(Sketcher.Constraint("Coincident", 2, 2, 3, 1))
sketch10.addConstraint(Sketcher.Constraint("Coincident", 3, 2, 0, 1))
sketch10.addConstraint(Sketcher.Constraint("Coincident", 4, 2, 5, 1))
sketch10.addConstraint(Sketcher.Constraint("Coincident", 5, 2, 6, 1))
sketch10.addConstraint(Sketcher.Constraint("Coincident", 6, 2, 7, 1))
sketch10.addConstraint(Sketcher.Constraint("Coincident", 7, 2, 4, 1))
sketch10.addConstraint(Sketcher.Constraint("Vertical", 0))
sketch10.addConstraint(Sketcher.Constraint("Horizontal", 1))
sketch10.addConstraint(Sketcher.Constraint("Vertical", 2))
sketch10.addConstraint(Sketcher.Constraint("Horizontal", 3))
sketch10.addConstraint(Sketcher.Constraint("Vertical", 4))
sketch10.addConstraint(Sketcher.Constraint("Horizontal", 5))
sketch10.addConstraint(Sketcher.Constraint("Vertical", 6))
sketch10.addConstraint(Sketcher.Constraint("Horizontal", 7))
sketch10.addConstraint(Sketcher.Constraint("Coincident", 1, 2, -1, 1))
sketch10.addConstraint(Sketcher.Constraint("PointOnObject", 4, 2, -1))
sketch10.addConstraint(Sketcher.Constraint("Horizontal", 3, 2, 6, 2))
sketch10.addConstraint(Sketcher.Constraint("Equal", 3, 5))
sketch10.addConstraint(Sketcher.Constraint("Equal", 7, 0))
sketch10.addConstraint(Sketcher.Constraint("DistanceX", 1, 1, 1, 2, Q("30 mm")))
sketch10.addConstraint(Sketcher.Constraint("DistanceX", -1, 1, 4, 2, Q("230 mm")))
pad9 = body.newObject("PartDesign::Pad", "Pad008")
pad9.Profile = sketch10
pad9.Length = 180
pad9.Reversed = True

# Sketch on XY plane
sketch11 = body.newObject("Sketcher::SketchObject", "Sketch010")
sketch11.AttachmentSupport = (doc.getObject("XY_Plane"), [""])
sketch11.MapMode = "FlatFace"
sketch11.AttachmentOffset = App.Placement(App.Vector(0, 0, -170), App.Rotation())
sketch11.addGeometry(Part.LineSegment(App.Vector(270, 30, 0), App.Vector(270, 0, 0)), False)
sketch11.addGeometry(Part.LineSegment(App.Vector(270, 0, 0), App.Vector(300, 0, 0)), False)
sketch11.addGeometry(Part.LineSegment(App.Vector(300, 0, 0), App.Vector(300, 30, 0)), False)
sketch11.addGeometry(Part.LineSegment(App.Vector(300, 30, 0), App.Vector(270, 30, 0)), False)
sketch11.addConstraint(Sketcher.Constraint("Coincident", 0, 2, 1, 1))
sketch11.addConstraint(Sketcher.Constraint("Coincident", 1, 2, 2, 1))
sketch11.addConstraint(Sketcher.Constraint("Coincident", 2, 2, 3, 1))
sketch11.addConstraint(Sketcher.Constraint("Coincident", 3, 2, 0, 1))
sketch11.addConstraint(Sketcher.Constraint("Vertical", 0))
sketch11.addConstraint(Sketcher.Constraint("Horizontal", 1))
sketch11.addConstraint(Sketcher.Constraint("Vertical", 2))
sketch11.addConstraint(Sketcher.Constraint("Horizontal", 3))
sketch11.addConstraint(Sketcher.Constraint("PointOnObject", 0, 2, -1))
sketch11.addConstraint(Sketcher.Constraint("Equal", 3, 0))
sketch11.addConstraint(Sketcher.Constraint("DistanceX", 1, 1, 1, 2, Q("30 mm")))
sketch11.addConstraint(Sketcher.Constraint("DistanceX", -1, 1, 0, 2, Q("270 mm")))
pocket2 = body.newObject("PartDesign::Pocket", "Pocket001")
pocket2.Profile = sketch11
pocket2.Length = 340
pocket2.Reversed = True

# Sketch on XY plane
sketch12 = body.newObject("Sketcher::SketchObject", "Sketch011")
sketch12.AttachmentSupport = (doc.getObject("XY_Plane"), [""])
sketch12.MapMode = "FlatFace"
sketch12.AttachmentOffset = App.Placement(App.Vector(0, 0, -170), App.Rotation())
sketch12.addGeometry(Part.LineSegment(App.Vector(-300, 30, 0), App.Vector(-300, 0, 0)), False)
sketch12.addGeometry(Part.LineSegment(App.Vector(-300, 0, 0), App.Vector(-270, 0, 0)), False)
sketch12.addGeometry(Part.LineSegment(App.Vector(-270, 0, 0), App.Vector(-270, 30, 0)), False)
sketch12.addGeometry(Part.LineSegment(App.Vector(-270, 30, 0), App.Vector(-300, 30, 0)), False)
sketch12.addConstraint(Sketcher.Constraint("Coincident", 0, 2, 1, 1))
sketch12.addConstraint(Sketcher.Constraint("Coincident", 1, 2, 2, 1))
sketch12.addConstraint(Sketcher.Constraint("Coincident", 2, 2, 3, 1))
sketch12.addConstraint(Sketcher.Constraint("Coincident", 3, 2, 0, 1))
sketch12.addConstraint(Sketcher.Constraint("Vertical", 0))
sketch12.addConstraint(Sketcher.Constraint("Horizontal", 1))
sketch12.addConstraint(Sketcher.Constraint("Vertical", 2))
sketch12.addConstraint(Sketcher.Constraint("Horizontal", 3))
sketch12.addConstraint(Sketcher.Constraint("PointOnObject", 0, 2, -1))
sketch12.addConstraint(Sketcher.Constraint("Equal", 3, 0))
sketch12.addConstraint(Sketcher.Constraint("DistanceX", 1, 1, 1, 2, Q("30 mm")))
sketch12.addConstraint(Sketcher.Constraint("DistanceX", 0, 2, -1, 1, Q("300 mm")))
pocket3 = body.newObject("PartDesign::Pocket", "Pocket002")
pocket3.Profile = sketch12
pocket3.Length = 340
pocket3.Reversed = True

# Sketch on YZ plane
sketch13 = body.newObject("Sketcher::SketchObject", "Sketch012")
sketch13.AttachmentSupport = (doc.getObject("YZ_Plane"), [""])
sketch13.MapMode = "FlatFace"
sketch13.AttachmentOffset = App.Placement(App.Vector(0, 0, -300), App.Rotation())
sketch13.addGeometry(Part.LineSegment(App.Vector(30, -200, 0), App.Vector(0, -200, 0)), False)
sketch13.addGeometry(Part.LineSegment(App.Vector(0, -200, 0), App.Vector(0, -170, 0)), False)
sketch13.addGeometry(Part.LineSegment(App.Vector(0, -170, 0), App.Vector(30, -170, 0)), False)
sketch13.addGeometry(Part.LineSegment(App.Vector(30, -170, 0), App.Vector(30, -200, 0)), False)
sketch13.addGeometry(Part.LineSegment(App.Vector(30, 170, 0), App.Vector(0, 170, 0)), False)
sketch13.addGeometry(Part.LineSegment(App.Vector(0, 170, 0), App.Vector(0, 200, 0)), False)
sketch13.addGeometry(Part.LineSegment(App.Vector(0, 200, 0), App.Vector(30, 200, 0)), False)
sketch13.addGeometry(Part.LineSegment(App.Vector(30, 200, 0), App.Vector(30, 170, 0)), False)
sketch13.addConstraint(Sketcher.Constraint("Coincident", 0, 2, 1, 1))
sketch13.addConstraint(Sketcher.Constraint("Coincident", 1, 2, 2, 1))
sketch13.addConstraint(Sketcher.Constraint("Coincident", 2, 2, 3, 1))
sketch13.addConstraint(Sketcher.Constraint("Coincident", 3, 2, 0, 1))
sketch13.addConstraint(Sketcher.Constraint("Coincident", 4, 2, 5, 1))
sketch13.addConstraint(Sketcher.Constraint("Coincident", 5, 2, 6, 1))
sketch13.addConstraint(Sketcher.Constraint("Coincident", 6, 2, 7, 1))
sketch13.addConstraint(Sketcher.Constraint("Coincident", 7, 2, 4, 1))
sketch13.addConstraint(Sketcher.Constraint("Horizontal", 0))
sketch13.addConstraint(Sketcher.Constraint("Vertical", 1))
sketch13.addConstraint(Sketcher.Constraint("Horizontal", 2))
sketch13.addConstraint(Sketcher.Constraint("Vertical", 3))
sketch13.addConstraint(Sketcher.Constraint("Horizontal", 4))
sketch13.addConstraint(Sketcher.Constraint("Vertical", 5))
sketch13.addConstraint(Sketcher.Constraint("Horizontal", 6))
sketch13.addConstraint(Sketcher.Constraint("Vertical", 7))
sketch13.addConstraint(Sketcher.Constraint("Symmetric", 1, 2, 4, 2, -1, 1))
sketch13.addConstraint(Sketcher.Constraint("Symmetric", 0, 2, 5, 2, -1))
sketch13.addConstraint(Sketcher.Constraint("Vertical", 3, 2, 6, 2))
sketch13.addConstraint(Sketcher.Constraint("Equal", 6, 1))
sketch13.addConstraint(Sketcher.Constraint("DistanceX", 0, 2, 0, 1, Q("30 mm")))
sketch13.addConstraint(Sketcher.Constraint("DistanceY", 0, 2, -1, 1, Q("200 mm")))
pad10 = body.newObject("PartDesign::Pad", "Pad009")
pad10.Profile = sketch13
pad10.Length = 50
pad10.Reversed = True

# Sketch on XY plane
sketch14 = body.newObject("Sketcher::SketchObject", "Sketch013")
sketch14.AttachmentSupport = (doc.getObject("XY_Plane"), [""])
sketch14.MapMode = "FlatFace"
sketch14.AttachmentOffset = App.Placement(App.Vector(0, 0, -170), App.Rotation())
sketch14.addGeometry(Part.LineSegment(App.Vector(-350, 30, 0), App.Vector(-350, 0, 0)), False)
sketch14.addGeometry(Part.LineSegment(App.Vector(-350, 0, 0), App.Vector(-320, 0, 0)), False)
sketch14.addGeometry(Part.LineSegment(App.Vector(-320, 0, 0), App.Vector(-320, 30, 0)), False)
sketch14.addGeometry(Part.LineSegment(App.Vector(-320, 30, 0), App.Vector(-350, 30, 0)), False)
sketch14.addConstraint(Sketcher.Constraint("Coincident", 0, 2, 1, 1))
sketch14.addConstraint(Sketcher.Constraint("Coincident", 1, 2, 2, 1))
sketch14.addConstraint(Sketcher.Constraint("Coincident", 2, 2, 3, 1))
sketch14.addConstraint(Sketcher.Constraint("Coincident", 3, 2, 0, 1))
sketch14.addConstraint(Sketcher.Constraint("Vertical", 0))
sketch14.addConstraint(Sketcher.Constraint("Horizontal", 1))
sketch14.addConstraint(Sketcher.Constraint("Vertical", 2))
sketch14.addConstraint(Sketcher.Constraint("Horizontal", 3))
sketch14.addConstraint(Sketcher.Constraint("PointOnObject", 0, 2, -1))
sketch14.addConstraint(Sketcher.Constraint("Equal", 3, 0))
sketch14.addConstraint(Sketcher.Constraint("DistanceX", 1, 1, 1, 2, Q("30 mm")))
sketch14.addConstraint(Sketcher.Constraint("DistanceX", 0, 2, -1, 1, Q("350 mm")))
pad11 = body.newObject("PartDesign::Pad", "Pad010")
pad11.Profile = sketch14
pad11.Length = 340

# Sketch on XZ plane
sketch15 = body.newObject("Sketcher::SketchObject", "Sketch014")
sketch15.AttachmentSupport = (doc.getObject("XZ_Plane"), [""])
sketch15.MapMode = "FlatFace"
sketch15.AttachmentOffset = App.Placement(App.Vector(0, 0, -30), App.Rotation())
sketch15.addGeometry(Part.LineSegment(App.Vector(-350, -200, 0), App.Vector(-350, 200, 0)), False)
sketch15.addGeometry(Part.LineSegment(App.Vector(-350, 200, 0), App.Vector(-30.603929, 200, 0)), False)
sketch15.addGeometry(Part.LineSegment(App.Vector(-30.603929, 200, 0), App.Vector(-30.603929, -200, 0)), False)
sketch15.addGeometry(Part.LineSegment(App.Vector(-30.603929, -200, 0), App.Vector(-350, -200, 0)), False)
sketch15.addConstraint(Sketcher.Constraint("Coincident", 0, 2, 1, 1))
sketch15.addConstraint(Sketcher.Constraint("Coincident", 1, 2, 2, 1))
sketch15.addConstraint(Sketcher.Constraint("Coincident", 2, 2, 3, 1))
sketch15.addConstraint(Sketcher.Constraint("Coincident", 3, 2, 0, 1))
sketch15.addConstraint(Sketcher.Constraint("Vertical", 0))
sketch15.addConstraint(Sketcher.Constraint("Horizontal", 1))
sketch15.addConstraint(Sketcher.Constraint("Vertical", 2))
sketch15.addConstraint(Sketcher.Constraint("Horizontal", 3))
sketch15.addConstraint(Sketcher.Constraint("DistanceY", 0, 1, 0, 2, Q("400 mm")))
sketch15.addConstraint(Sketcher.Constraint("DistanceX", 0, 2, -1, 1, Q("350 mm")))
sketch15.addConstraint(Sketcher.Constraint("DistanceY", -1, 1, 0, 2, Q("200 mm")))
sketch15.addConstraint(Sketcher.Constraint("DistanceX", 1, 1, 1, 2, Q("319.396071 mm")))
pad12 = body.newObject("PartDesign::Pad", "Pad011")
pad12.Profile = sketch15
pad12.Length = 10
pad12.Reversed = True

# Sketch on XY plane
sketch16 = body.newObject("Sketcher::SketchObject", "Sketch015")
sketch16.AttachmentSupport = (doc.getObject("XY_Plane"), [""])
sketch16.MapMode = "FlatFace"
sketch16.AttachmentOffset = App.Placement(App.Vector(0, 0, -30), App.Rotation())
sketch16.addGeometry(Part.LineSegment(App.Vector(260, 210, 0), App.Vector(260, 180, 0)), False)
sketch16.addGeometry(Part.LineSegment(App.Vector(260, 180, 0), App.Vector(-30, 180, 0)), False)
sketch16.addGeometry(Part.LineSegment(App.Vector(-30, 180, 0), App.Vector(-30, 210, 0)), False)
sketch16.addGeometry(Part.LineSegment(App.Vector(-30, 210, 0), App.Vector(260, 210, 0)), False)
sketch16.addConstraint(Sketcher.Constraint("Coincident", 0, 2, 1, 1))
sketch16.addConstraint(Sketcher.Constraint("Coincident", 1, 2, 2, 1))
sketch16.addConstraint(Sketcher.Constraint("Coincident", 2, 2, 3, 1))
sketch16.addConstraint(Sketcher.Constraint("Coincident", 3, 2, 0, 1))
sketch16.addConstraint(Sketcher.Constraint("Vertical", 0))
sketch16.addConstraint(Sketcher.Constraint("Horizontal", 1))
sketch16.addConstraint(Sketcher.Constraint("Vertical", 2))
sketch16.addConstraint(Sketcher.Constraint("Horizontal", 3))
sketch16.addConstraint(Sketcher.Constraint("DistanceX", 1, 2, 1, 1, Q("290 mm")))
sketch16.addConstraint(Sketcher.Constraint("DistanceY", 0, 2, 0, 1, Q("30 mm")))
sketch16.addConstraint(Sketcher.Constraint("DistanceX", -1, 1, 0, 2, Q("260 mm")))
sketch16.addConstraint(Sketcher.Constraint("DistanceY", -1, 1, 0, 2, Q("180 mm")))
pad13 = body.newObject("PartDesign::Pad", "Pad012")
pad13.Profile = sketch16
pad13.Length = 5
pad13.Reversed = True
body2 = doc.addObject("PartDesign::Body", "Body001")

# Sketch on XZ plane
sketch17 = body2.newObject("Sketcher::SketchObject", "Sketch016")
sketch17.AttachmentSupport = (doc.getObject("XZ_Plane001"), [""])
sketch17.MapMode = "FlatFace"
sketch17.addGeometry(Part.Circle(App.Vector(15, -10, 0), App.Vector(0, 0, 1), 15), False)
sketch17.addGeometry(Part.Circle(App.Vector(15, -10, 0), App.Vector(0, 0, 1), 13), False)
sketch17.addConstraint(Sketcher.Constraint("Coincident", 1, 3, 0, 3))
sketch17.addConstraint(Sketcher.Constraint("Diameter", 0, Q("30 mm")))
sketch17.addConstraint(Sketcher.Constraint("Diameter", 1, Q("26 mm")))
sketch17.addConstraint(Sketcher.Constraint("DistanceX", -1, 1, 0, 3, Q("15 mm")))
sketch17.addConstraint(Sketcher.Constraint("DistanceY", 0, 3, -1, 1, Q("10 mm")))
pad14 = body2.newObject("PartDesign::Pad", "Pad013")
pad14.Profile = sketch17
pad14.Length = 30
pad14.Reversed = True
body3 = doc.addObject("PartDesign::Body", "Body002")

# Sketch on XZ plane
sketch18 = body3.newObject("Sketcher::SketchObject", "Sketch017")
sketch18.AttachmentSupport = (doc.getObject("XZ_Plane002"), [""])
sketch18.MapMode = "FlatFace"
sketch18.addGeometry(Part.Circle(App.Vector(215, -10.676345, 0), App.Vector(0, 0, 1), 15), False)
sketch18.addGeometry(Part.Circle(App.Vector(215, -10.676345, 0), App.Vector(0, 0, 1), 13), False)
sketch18.addConstraint(Sketcher.Constraint("Coincident", 1, 3, 0, 3))
sketch18.addConstraint(Sketcher.Constraint("Diameter", 0, Q("30 mm")))
sketch18.addConstraint(Sketcher.Constraint("Diameter", 1, Q("26 mm")))
sketch18.addConstraint(Sketcher.Constraint("DistanceX", -1, 1, 0, 3, Q("215 mm")))
sketch18.addConstraint(Sketcher.Constraint("DistanceY", 0, 3, -1, 1, Q("10.676345 mm")))
pad15 = body3.newObject("PartDesign::Pad", "Pad014")
pad15.Profile = sketch18
pad15.Length = 30
pad15.Reversed = True
body4 = doc.addObject("PartDesign::Body", "Body003")

# Sketch on XZ plane
sketch19 = body4.newObject("Sketcher::SketchObject", "Sketch018")
sketch19.AttachmentSupport = (doc.getObject("XZ_Plane003"), [""])
sketch19.MapMode = "FlatFace"
sketch19.AttachmentOffset = App.Placement(App.Vector(0, 0, -210), App.Rotation())
sketch19.addGeometry(Part.Circle(App.Vector(15, -10, 0), App.Vector(0, 0, 1), 15), False)
sketch19.addGeometry(Part.Circle(App.Vector(15, -10, 0), App.Vector(0, 0, 1), 13), False)
sketch19.addConstraint(Sketcher.Constraint("Coincident", 1, 3, 0, 3))
sketch19.addConstraint(Sketcher.Constraint("Diameter", 0, Q("30 mm")))
sketch19.addConstraint(Sketcher.Constraint("Diameter", 1, Q("26 mm")))
sketch19.addConstraint(Sketcher.Constraint("DistanceX", -1, 1, 0, 3, Q("15 mm")))
sketch19.addConstraint(Sketcher.Constraint("DistanceY", 0, 3, -1, 1, Q("10 mm")))
pad16 = body4.newObject("PartDesign::Pad", "Pad015")
pad16.Profile = sketch19
pad16.Length = 30
body5 = doc.addObject("PartDesign::Body", "Body004")

# Sketch on XZ plane
sketch20 = body5.newObject("Sketcher::SketchObject", "Sketch019")
sketch20.AttachmentSupport = (doc.getObject("XZ_Plane004"), [""])
sketch20.MapMode = "FlatFace"
sketch20.AttachmentOffset = App.Placement(App.Vector(0, 0, -210), App.Rotation())
sketch20.addGeometry(Part.Circle(App.Vector(215, -10.676345, 0), App.Vector(0, 0, 1), 15), False)
sketch20.addGeometry(Part.Circle(App.Vector(215, -10.676345, 0), App.Vector(0, 0, 1), 13), False)
sketch20.addConstraint(Sketcher.Constraint("Coincident", 1, 3, 0, 3))
sketch20.addConstraint(Sketcher.Constraint("Diameter", 0, Q("30 mm")))
sketch20.addConstraint(Sketcher.Constraint("Diameter", 1, Q("26 mm")))
sketch20.addConstraint(Sketcher.Constraint("DistanceX", -1, 1, 0, 3, Q("215 mm")))
sketch20.addConstraint(Sketcher.Constraint("DistanceY", 0, 3, -1, 1, Q("10.676345 mm")))
pad17 = body5.newObject("PartDesign::Pad", "Pad016")
pad17.Profile = sketch20
pad17.Length = 30

doc.recompute()
